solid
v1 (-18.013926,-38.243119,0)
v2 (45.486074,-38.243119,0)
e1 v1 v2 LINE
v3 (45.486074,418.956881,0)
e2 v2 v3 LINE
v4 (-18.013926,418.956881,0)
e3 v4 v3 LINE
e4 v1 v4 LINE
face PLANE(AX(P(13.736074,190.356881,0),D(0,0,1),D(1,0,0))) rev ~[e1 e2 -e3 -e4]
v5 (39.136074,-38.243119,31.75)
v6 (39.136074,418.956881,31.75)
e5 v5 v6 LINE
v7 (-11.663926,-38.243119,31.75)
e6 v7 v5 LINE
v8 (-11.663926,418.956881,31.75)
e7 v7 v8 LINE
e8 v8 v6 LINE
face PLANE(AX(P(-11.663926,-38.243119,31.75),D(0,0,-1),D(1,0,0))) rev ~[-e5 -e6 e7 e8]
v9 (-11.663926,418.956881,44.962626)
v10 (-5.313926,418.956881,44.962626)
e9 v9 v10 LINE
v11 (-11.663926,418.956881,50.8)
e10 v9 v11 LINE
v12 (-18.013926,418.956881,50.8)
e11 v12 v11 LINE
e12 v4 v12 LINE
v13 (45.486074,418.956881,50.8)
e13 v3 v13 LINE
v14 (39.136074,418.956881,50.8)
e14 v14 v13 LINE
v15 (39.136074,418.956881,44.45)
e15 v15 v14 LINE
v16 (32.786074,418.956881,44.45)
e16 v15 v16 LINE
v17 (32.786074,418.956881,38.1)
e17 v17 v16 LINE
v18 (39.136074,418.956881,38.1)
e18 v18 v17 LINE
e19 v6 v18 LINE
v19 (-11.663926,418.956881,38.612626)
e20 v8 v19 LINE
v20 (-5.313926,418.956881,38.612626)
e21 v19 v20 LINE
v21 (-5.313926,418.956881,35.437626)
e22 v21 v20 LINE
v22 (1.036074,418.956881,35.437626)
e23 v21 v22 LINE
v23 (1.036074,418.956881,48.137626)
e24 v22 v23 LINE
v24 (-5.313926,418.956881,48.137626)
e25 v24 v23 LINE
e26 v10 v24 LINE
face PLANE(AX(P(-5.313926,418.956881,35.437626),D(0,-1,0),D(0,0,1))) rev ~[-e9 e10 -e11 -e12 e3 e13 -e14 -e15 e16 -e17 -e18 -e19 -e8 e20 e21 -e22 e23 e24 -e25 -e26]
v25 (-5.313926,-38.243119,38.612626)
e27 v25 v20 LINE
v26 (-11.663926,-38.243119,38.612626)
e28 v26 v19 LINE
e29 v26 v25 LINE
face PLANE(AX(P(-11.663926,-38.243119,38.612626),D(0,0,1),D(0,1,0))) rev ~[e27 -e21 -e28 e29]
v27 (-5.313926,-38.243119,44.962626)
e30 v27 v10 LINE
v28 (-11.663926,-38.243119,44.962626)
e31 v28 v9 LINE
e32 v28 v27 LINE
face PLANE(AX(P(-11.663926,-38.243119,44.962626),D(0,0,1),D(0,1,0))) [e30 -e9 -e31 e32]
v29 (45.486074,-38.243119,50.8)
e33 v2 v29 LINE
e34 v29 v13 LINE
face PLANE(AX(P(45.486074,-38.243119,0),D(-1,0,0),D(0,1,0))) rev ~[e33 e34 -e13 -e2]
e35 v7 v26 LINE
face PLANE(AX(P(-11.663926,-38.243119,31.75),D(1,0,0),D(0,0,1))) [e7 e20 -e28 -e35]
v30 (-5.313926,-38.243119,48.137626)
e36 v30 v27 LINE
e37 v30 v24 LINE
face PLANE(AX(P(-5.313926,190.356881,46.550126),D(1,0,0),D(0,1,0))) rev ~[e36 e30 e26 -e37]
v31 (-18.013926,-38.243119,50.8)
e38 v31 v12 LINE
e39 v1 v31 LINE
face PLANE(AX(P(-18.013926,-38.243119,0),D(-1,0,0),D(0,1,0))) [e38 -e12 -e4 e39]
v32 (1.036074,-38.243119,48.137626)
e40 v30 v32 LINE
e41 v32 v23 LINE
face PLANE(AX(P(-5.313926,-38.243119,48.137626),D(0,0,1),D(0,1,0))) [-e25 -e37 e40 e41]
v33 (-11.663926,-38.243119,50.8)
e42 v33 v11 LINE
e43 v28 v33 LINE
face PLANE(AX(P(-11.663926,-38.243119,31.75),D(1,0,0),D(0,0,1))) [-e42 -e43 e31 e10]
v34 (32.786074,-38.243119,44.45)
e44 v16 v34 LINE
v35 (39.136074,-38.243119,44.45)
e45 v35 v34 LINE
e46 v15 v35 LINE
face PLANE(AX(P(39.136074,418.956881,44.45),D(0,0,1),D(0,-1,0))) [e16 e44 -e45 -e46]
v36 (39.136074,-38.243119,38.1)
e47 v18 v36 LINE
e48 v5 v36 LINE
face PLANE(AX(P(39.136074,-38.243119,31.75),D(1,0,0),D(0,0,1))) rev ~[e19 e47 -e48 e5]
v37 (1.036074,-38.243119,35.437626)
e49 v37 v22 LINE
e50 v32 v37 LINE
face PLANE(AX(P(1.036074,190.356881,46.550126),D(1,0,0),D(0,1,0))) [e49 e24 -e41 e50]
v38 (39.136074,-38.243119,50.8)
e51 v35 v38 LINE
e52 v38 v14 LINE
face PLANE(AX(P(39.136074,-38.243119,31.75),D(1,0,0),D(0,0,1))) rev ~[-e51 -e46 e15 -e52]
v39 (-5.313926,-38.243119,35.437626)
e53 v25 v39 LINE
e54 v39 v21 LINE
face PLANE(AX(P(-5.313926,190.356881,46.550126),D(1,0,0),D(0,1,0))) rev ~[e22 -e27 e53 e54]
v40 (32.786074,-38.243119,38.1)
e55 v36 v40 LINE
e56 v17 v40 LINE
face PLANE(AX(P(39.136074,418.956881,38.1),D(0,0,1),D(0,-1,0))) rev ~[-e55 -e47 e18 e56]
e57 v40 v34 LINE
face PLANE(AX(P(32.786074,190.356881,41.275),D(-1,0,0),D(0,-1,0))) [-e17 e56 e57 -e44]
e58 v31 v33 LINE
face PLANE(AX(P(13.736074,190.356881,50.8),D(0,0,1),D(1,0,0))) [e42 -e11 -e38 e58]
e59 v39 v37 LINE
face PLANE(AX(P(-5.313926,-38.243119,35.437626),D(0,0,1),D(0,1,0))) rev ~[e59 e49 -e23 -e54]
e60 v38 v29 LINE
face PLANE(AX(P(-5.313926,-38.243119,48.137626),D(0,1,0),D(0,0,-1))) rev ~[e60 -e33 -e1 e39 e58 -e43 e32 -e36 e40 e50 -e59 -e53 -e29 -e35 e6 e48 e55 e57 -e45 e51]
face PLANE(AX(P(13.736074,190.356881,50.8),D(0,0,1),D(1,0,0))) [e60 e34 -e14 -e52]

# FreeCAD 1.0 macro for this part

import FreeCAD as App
import Part
import Sketcher
Q = App.Units.Quantity

doc = App.newDocument("Part")
params = doc.addObject("Spreadsheet::Sheet", "Params")
for row, (alias, value) in enumerate([
    ("sketch1_height", "18 in"),
    ("sketch1_width", "2.5 in"),
    ("pad1_length", "2 in"),
    ("sketch2_width", "2 in"),
    ("sketch2_height", "0.75 in"),
    ("pocket1_length", "18 in"),
    ("sketch3_width", "18 in"),
    ("sketch3_height", "0.25 in"),
    ("pad2_length", "0.25 in"),
    ("sketch4_width", "18 in"),
    ("sketch4_height", "0.5 in"),
    ("pad3_length", "0.25 in"),
    ("sketch5_width", "18 in"),
    ("sketch5_height", "0.25 in"),
    ("pad4_length", "0.25 in"),
], start=1):
    params.set(f"A{row}", alias)
    params.set(f"B{row}", "=" + value)
    params.setAlias(f"B{row}", alias)

body = doc.addObject("PartDesign::Body", "Body")

sketch1 = doc.addObject("Sketcher::SketchObject", "Sketch")
body.addObject(sketch1)
sketch1.AttachmentSupport = (doc.XY_Plane, [""])
sketch1.MapMode = "FlatFace"
sketch1.addGeometry([
    Part.LineSegment(App.Vector(-18, 419, 0), App.Vector(-18, -38, 0)),
    Part.LineSegment(App.Vector(-18, -38, 0), App.Vector(45, -38, 0)),
    Part.LineSegment(App.Vector(45, -38, 0), App.Vector(45, 419, 0)),
    Part.LineSegment(App.Vector(45, 419, 0), App.Vector(-18, 419, 0)),
], False)
sketch1.addConstraint([
    Sketcher.Constraint("Coincident", 0, 2, 1, 1),
    Sketcher.Constraint("Coincident", 1, 2, 2, 1),
    Sketcher.Constraint("Coincident", 2, 2, 3, 1),
    Sketcher.Constraint("Coincident", 3, 2, 0, 1),
    Sketcher.Constraint("Vertical", 0),
    Sketcher.Constraint("Horizontal", 1),
    Sketcher.Constraint("Vertical", 2),
    Sketcher.Constraint("Horizontal", 3),
    Sketcher.Constraint("DistanceY", 0, 2, 0, 1, Q("18 in")),
    Sketcher.Constraint("DistanceX", 1, 1, 1, 2, Q("2.5 in")),
    Sketcher.Constraint("DistanceY", 0, 2, -1, 1, Q("38.243119 mm")),
    Sketcher.Constraint("DistanceX", 0, 2, -1, 1, Q("18.013926 mm")),
])
sketch1.setExpression("Constraints[8]", "Params.sketch1_height")
sketch1.setExpression("Constraints[9]", "Params.sketch1_width")
pad1 = doc.addObject("PartDesign::Pad", "Pad")
body.addObject(pad1)
pad1.Profile = sketch1
pad1.setExpression("Length", "Params.pad1_length")

sketch2 = doc.addObject("Sketcher::SketchObject", "Sketch001")
body.addObject(sketch2)
sketch2.AttachmentSupport = (doc.XZ_Plane, [""])
sketch2.MapMode = "FlatFace"
sketch2.AttachmentOffset = App.Placement(App.Vector(0, 0, 38.243119), App.Rotation())
sketch2.addGeometry([
    Part.LineSegment(App.Vector(-12, 51, 0), App.Vector(-12, 32, 0)),
    Part.LineSegment(App.Vector(-12, 32, 0), App.Vector(39, 32, 0)),
    Part.LineSegment(App.Vector(39, 32, 0), App.Vector(39, 51, 0)),
    Part.LineSegment(App.Vector(39, 51, 0), App.Vector(-12, 51, 0)),
], False)
sketch2.addConstraint([
    Sketcher.Constraint("Coincident", 0, 2, 1, 1),
    Sketcher.Constraint("Coincident", 1, 2, 2, 1),
    Sketcher.Constraint("Coincident", 2, 2, 3, 1),
    Sketcher.Constraint("Coincident", 3, 2, 0, 1),
    Sketcher.Constraint("Vertical", 0),
    Sketcher.Constraint("Horizontal", 1),
    Sketcher.Constraint("Vertical", 2),
    Sketcher.Constraint("Horizontal", 3),
    Sketcher.Constraint("DistanceX", 1, 1, 1, 2, Q("2 in")),
    Sketcher.Constraint("DistanceY", -1, 1, 2, 2, Q("2 in")),
    Sketcher.Constraint("DistanceY", 0, 2, 0, 1, Q("0.75 in")),
    Sketcher.Constraint("DistanceX", 0, 2, -1, 1, Q("11.663926 mm")),
])
sketch2.setExpression("Constraints[8]", "Params.sketch2_width")
sketch2.setExpression("Constraints[10]", "Params.sketch2_height")
pocket1 = doc.addObject("PartDesign::Pocket", "Pocket")
body.addObject(pocket1)
pocket1.Profile = sketch2
pocket1.setExpression("Length", "Params.pocket1_length")

sketch3 = doc.addObject("Sketcher::SketchObject", "Sketch002")
body.addObject(sketch3)
sketch3.AttachmentSupport = (doc.YZ_Plane, [""])
sketch3.MapMode = "FlatFace"
sketch3.AttachmentOffset = App.Placement(App.Vector(0, 0, -11.663926), App.Rotation())
sketch3.addGeometry([
    Part.LineSegment(App.Vector(-38, 45, 0), App.Vector(-38, 39, 0)),
    Part.LineSegment(App.Vector(-38, 39, 0), App.Vector(419, 39, 0)),
    Part.LineSegment(App.Vector(419, 39, 0), App.Vector(419, 45, 0)),
    Part.LineSegment(App.Vector(419, 45, 0), App.Vector(-38, 45, 0)),
], False)
sketch3.addConstraint([
    Sketcher.Constraint("Coincident", 0, 2, 1, 1),
    Sketcher.Constraint("Coincident", 1, 2, 2, 1),
    Sketcher.Constraint("Coincident", 2, 2, 3, 1),
    Sketcher.Constraint("Coincident", 3, 2, 0, 1),
    Sketcher.Constraint("Vertical", 0),
    Sketcher.Constraint("Horizontal", 1),
    Sketcher.Constraint("Vertical", 2),
    Sketcher.Constraint("Horizontal", 3),
    Sketcher.Constraint("DistanceX", 1, 1, 1, 2, Q("18 in")),
    Sketcher.Constraint("DistanceY", 0, 2, 0, 1, Q("0.25 in")),
    Sketcher.Constraint("DistanceX", 0, 2, -1, 1, Q("38.243119 mm")),
    Sketcher.Constraint("DistanceY", -1, 1, 0, 2, Q("38.612626 mm")),
])
sketch3.setExpression("Constraints[8]", "Params.sketch3_width")
sketch3.setExpression("Constraints[9]", "Params.sketch3_height")
pad2 = doc.addObject("PartDesign::Pad", "Pad001")
body.addObject(pad2)
pad2.Profile = sketch3
pad2.setExpression("Length", "Params.pad2_length")

sketch4 = doc.addObject("Sketcher::SketchObject", "Sketch003")
body.addObject(sketch4)
sketch4.AttachmentSupport = (doc.YZ_Plane, [""])
sketch4.MapMode = "FlatFace"
sketch4.AttachmentOffset = App.Placement(App.Vector(0, 0, -5.313926), App.Rotation())
sketch4.addGeometry([
    Part.LineSegment(App.Vector(-38, 48, 0), App.Vector(-38, 35, 0)),
    Part.LineSegment(App.Vector(-38, 35, 0), App.Vector(419, 35, 0)),
    Part.LineSegment(App.Vector(419, 35, 0), App.Vector(419, 48, 0)),
    Part.LineSegment(App.Vector(419, 48, 0), App.Vector(-38, 48, 0)),
], False)
sketch4.addConstraint([
    Sketcher.Constraint("Coincident", 0, 2, 1, 1),
    Sketcher.Constraint("Coincident", 1, 2, 2, 1),
    Sketcher.Constraint("Coincident", 2, 2, 3, 1),
    Sketcher.Constraint("Coincident", 3, 2, 0, 1),
    Sketcher.Constraint("Vertical", 0),
    Sketcher.Constraint("Horizontal", 1),
    Sketcher.Constraint("Vertical", 2),
    Sketcher.Constraint("Horizontal", 3),
    Sketcher.Constraint("DistanceX", 1, 1, 1, 2, Q("18 in")),
    Sketcher.Constraint("DistanceY", 0, 2, 0, 1, Q("0.5 in")),
    Sketcher.Constraint("DistanceX", 0, 2, -1, 1, Q("38.243119 mm")),
    Sketcher.Constraint("DistanceY", -1, 1, 0, 2, Q("35.437626 mm")),
])
sketch4.setExpression("Constraints[8]", "Params.sketch4_width")
sketch4.setExpression("Constraints[9]", "Params.sketch4_height")
pad3 = doc.addObject("PartDesign::Pad", "Pad002")
body.addObject(pad3)
pad3.Profile = sketch4
pad3.setExpression("Length", "Params.pad3_length")

sketch5 = doc.addObject("Sketcher::SketchObject", "Sketch004")
body.addObject(sketch5)
sketch5.AttachmentSupport = (doc.YZ_Plane, [""])
sketch5.MapMode = "FlatFace"
sketch5.AttachmentOffset = App.Placement(App.Vector(0, 0, 39.136074), App.Rotation())
sketch5.addGeometry([
    Part.LineSegment(App.Vector(419, 44, 0), App.Vector(419, 38, 0)),
    Part.LineSegment(App.Vector(419, 38, 0), App.Vector(-38, 38, 0)),
    Part.LineSegment(App.Vector(-38, 38, 0), App.Vector(-38, 44, 0)),
    Part.LineSegment(App.Vector(-38, 44, 0), App.Vector(419, 44, 0)),
], False)
sketch5.addConstraint([
    Sketcher.Constraint("Coincident", 0, 2, 1, 1),
    Sketcher.Constraint("Coincident", 1, 2, 2, 1),
    Sketcher.Constraint("Coincident", 2, 2, 3, 1),
    Sketcher.Constraint("Coincident", 3, 2, 0, 1),
    Sketcher.Constraint("Vertical", 0),
    Sketcher.Constraint("Horizontal", 1),
    Sketcher.Constraint("Vertical", 2),
    Sketcher.Constraint("Horizontal", 3),
    Sketcher.Constraint("DistanceX", 1, 2, 1, 1, Q("18 in")),
    Sketcher.Constraint("DistanceY", 0, 2, 0, 1, Q("0.25 in")),
    Sketcher.Constraint("DistanceY", -1, 1, 0, 2, Q("1.5 in")),
    Sketcher.Constraint("DistanceX", -1, 1, 0, 2, Q("418.956881 mm")),
])
sketch5.setExpression("Constraints[8]", "Params.sketch5_width")
sketch5.setExpression("Constraints[9]", "Params.sketch5_height")
pad4 = doc.addObject("PartDesign::Pad", "Pad003")
body.addObject(pad4)
pad4.Profile = sketch5
pad4.setExpression("Length", "Params.pad4_length")
pad4.Reversed = True

doc.recompute()
